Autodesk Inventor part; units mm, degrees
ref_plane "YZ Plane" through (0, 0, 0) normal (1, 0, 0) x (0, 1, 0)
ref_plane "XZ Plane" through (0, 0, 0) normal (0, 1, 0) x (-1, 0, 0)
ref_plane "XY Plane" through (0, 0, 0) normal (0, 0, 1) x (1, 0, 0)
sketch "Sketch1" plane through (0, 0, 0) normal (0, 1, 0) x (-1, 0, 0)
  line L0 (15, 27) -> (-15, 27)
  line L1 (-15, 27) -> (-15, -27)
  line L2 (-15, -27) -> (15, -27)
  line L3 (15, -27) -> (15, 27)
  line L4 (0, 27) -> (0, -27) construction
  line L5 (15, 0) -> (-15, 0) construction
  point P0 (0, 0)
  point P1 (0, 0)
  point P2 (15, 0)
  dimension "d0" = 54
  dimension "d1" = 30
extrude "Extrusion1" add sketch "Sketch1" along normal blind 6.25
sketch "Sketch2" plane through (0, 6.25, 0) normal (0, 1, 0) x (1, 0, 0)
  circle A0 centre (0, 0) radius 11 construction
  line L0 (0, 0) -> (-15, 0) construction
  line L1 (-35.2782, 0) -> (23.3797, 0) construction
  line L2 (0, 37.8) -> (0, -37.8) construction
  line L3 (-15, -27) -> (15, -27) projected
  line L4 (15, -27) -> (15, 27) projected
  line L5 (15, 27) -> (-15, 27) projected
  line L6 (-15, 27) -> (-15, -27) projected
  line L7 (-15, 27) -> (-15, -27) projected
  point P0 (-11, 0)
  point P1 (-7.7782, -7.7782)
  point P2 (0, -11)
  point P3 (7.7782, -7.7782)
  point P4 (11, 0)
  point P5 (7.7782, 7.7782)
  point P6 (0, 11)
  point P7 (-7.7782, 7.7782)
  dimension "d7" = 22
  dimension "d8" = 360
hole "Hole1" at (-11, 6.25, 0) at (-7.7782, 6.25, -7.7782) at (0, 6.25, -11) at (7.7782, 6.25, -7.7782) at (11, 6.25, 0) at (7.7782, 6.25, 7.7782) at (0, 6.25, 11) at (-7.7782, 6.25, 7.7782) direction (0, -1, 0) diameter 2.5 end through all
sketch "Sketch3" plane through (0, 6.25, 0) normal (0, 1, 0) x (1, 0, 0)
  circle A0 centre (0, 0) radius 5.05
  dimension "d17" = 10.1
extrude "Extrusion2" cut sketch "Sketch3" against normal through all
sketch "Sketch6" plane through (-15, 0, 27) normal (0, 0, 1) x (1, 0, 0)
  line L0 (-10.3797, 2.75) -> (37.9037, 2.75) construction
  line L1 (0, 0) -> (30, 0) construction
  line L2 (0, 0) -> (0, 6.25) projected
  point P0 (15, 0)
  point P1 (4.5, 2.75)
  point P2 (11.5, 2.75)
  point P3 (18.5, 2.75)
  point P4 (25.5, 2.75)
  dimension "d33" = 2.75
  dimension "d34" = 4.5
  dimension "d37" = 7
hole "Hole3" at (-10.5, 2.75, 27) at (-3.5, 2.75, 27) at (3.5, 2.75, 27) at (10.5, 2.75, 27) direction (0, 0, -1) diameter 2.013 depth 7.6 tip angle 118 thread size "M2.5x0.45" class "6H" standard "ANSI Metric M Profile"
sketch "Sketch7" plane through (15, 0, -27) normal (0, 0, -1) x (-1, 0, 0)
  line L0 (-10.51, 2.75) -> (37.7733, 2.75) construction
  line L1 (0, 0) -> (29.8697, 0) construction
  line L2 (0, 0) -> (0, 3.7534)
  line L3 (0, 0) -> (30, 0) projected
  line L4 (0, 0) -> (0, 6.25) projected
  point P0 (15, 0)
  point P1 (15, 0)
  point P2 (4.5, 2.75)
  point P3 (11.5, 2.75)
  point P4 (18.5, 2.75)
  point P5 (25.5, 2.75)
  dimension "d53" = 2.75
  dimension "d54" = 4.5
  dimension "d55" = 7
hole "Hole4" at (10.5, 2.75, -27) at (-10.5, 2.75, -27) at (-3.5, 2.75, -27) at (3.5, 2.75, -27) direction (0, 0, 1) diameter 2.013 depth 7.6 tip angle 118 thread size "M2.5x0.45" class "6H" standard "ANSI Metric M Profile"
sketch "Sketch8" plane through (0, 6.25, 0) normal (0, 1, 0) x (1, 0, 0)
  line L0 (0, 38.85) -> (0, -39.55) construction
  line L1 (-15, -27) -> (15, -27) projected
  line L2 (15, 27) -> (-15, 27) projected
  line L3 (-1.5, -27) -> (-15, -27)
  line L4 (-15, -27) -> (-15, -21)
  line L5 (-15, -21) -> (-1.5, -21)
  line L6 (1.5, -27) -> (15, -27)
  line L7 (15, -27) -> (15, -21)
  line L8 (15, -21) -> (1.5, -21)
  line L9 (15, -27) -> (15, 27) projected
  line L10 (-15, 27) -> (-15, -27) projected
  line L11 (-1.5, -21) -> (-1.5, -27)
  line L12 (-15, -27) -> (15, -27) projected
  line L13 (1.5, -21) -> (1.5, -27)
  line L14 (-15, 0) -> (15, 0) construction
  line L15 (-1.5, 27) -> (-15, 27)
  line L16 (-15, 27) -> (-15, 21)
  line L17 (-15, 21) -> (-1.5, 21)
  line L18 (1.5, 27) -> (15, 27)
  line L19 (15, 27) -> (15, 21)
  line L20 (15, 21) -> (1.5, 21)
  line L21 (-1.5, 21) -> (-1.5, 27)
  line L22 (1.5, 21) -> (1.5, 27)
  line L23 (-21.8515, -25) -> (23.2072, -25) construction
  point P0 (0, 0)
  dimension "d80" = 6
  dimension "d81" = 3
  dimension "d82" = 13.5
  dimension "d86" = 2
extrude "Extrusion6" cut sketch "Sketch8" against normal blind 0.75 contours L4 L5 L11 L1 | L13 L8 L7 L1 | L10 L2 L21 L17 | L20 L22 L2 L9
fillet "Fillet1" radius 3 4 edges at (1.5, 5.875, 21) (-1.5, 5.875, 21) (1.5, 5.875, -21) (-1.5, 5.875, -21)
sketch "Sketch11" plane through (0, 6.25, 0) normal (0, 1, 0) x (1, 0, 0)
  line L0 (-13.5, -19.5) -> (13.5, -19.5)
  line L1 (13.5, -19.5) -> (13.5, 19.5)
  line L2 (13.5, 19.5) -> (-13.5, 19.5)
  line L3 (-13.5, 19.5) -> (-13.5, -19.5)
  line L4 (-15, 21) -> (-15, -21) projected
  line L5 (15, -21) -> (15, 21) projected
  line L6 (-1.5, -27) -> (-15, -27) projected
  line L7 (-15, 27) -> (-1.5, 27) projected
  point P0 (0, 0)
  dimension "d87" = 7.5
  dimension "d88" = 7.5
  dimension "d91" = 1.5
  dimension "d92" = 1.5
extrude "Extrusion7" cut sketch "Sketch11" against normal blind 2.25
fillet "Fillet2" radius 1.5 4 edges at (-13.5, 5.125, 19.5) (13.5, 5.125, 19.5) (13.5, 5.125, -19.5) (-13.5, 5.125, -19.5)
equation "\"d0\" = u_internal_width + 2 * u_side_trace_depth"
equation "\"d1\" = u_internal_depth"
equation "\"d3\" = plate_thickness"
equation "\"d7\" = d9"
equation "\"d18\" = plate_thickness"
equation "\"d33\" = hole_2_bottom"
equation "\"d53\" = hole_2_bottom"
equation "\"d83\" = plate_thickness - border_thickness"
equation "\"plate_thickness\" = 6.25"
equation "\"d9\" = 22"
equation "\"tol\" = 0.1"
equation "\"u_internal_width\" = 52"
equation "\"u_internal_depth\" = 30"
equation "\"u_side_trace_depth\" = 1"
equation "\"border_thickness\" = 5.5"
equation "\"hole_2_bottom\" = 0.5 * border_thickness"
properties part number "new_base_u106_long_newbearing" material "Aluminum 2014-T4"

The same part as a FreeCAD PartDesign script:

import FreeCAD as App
import Part
import Sketcher

V = App.Vector


def edges_at(feature, points):
    """Names of the edges that pass closest to the given points."""
    edges = feature.Shape.Edges
    near = lambda p: min(range(len(edges)), key=lambda i: edges[i].distToShape(Part.Vertex(*p))[0])
    return sorted({f"Edge{near(p) + 1}" for p in points})

doc = App.newDocument("Part")
params = doc.addObject("Spreadsheet::Sheet", "Params")
for row, (alias, value) in enumerate([
    ("sketch1_width", "30 mm"),
    ("sketch1_height", "54 mm"),
    ("pad1_length", "6.25 mm"),
    ("sketch2_diameter", "2.5 mm"),
    ("hole_diameter", "2.5 mm"),
    ("sketch3_diameter", "10.1 mm"),
    ("hole2_diameter", "2.013 mm"),
    ("hole2_depth", "7.6 mm"),
    ("hole3_diameter", "2.013 mm"),
    ("hole3_depth", "7.6 mm"),
    ("sketch6_height", "6 mm"),
    ("sketch6_width", "13.5 mm"),
    ("pocket2_length", "0.75 mm"),
    ("fillet_radius", "3 mm"),
    ("sketch7_width", "27 mm"),
    ("sketch7_height", "39 mm"),
    ("pocket3_length", "2.25 mm"),
    ("fillet2_radius", "1.5 mm"),
], start=1):
    params.set(f"A{row}", alias)
    params.set(f"B{row}", "=" + value)
    params.setAlias(f"B{row}", alias)

body = doc.addObject("PartDesign::Body", "Body")

# Sketch on XZ plane
sketch1 = doc.addObject("Sketcher::SketchObject", "Sketch")
body.addObject(sketch1)
sketch1.AttachmentSupport = (doc.XZ_Plane, [""])
sketch1.MapMode = "FlatFace"
sketch1.addGeometry(Part.LineSegment(V(-15, -27, 0), V(-15, 27, 0)), False)
sketch1.addGeometry(Part.LineSegment(V(-15, 27, 0), V(15, 27, 0)), False)
sketch1.addGeometry(Part.LineSegment(V(15, 27, 0), V(15, -27, 0)), False)
sketch1.addGeometry(Part.LineSegment(V(15, -27, 0), V(-15, -27, 0)), False)
sketch1.addConstraint(Sketcher.Constraint("Coincident", 0, 2, 1, 1))
sketch1.addConstraint(Sketcher.Constraint("Coincident", 1, 2, 2, 1))
sketch1.addConstraint(Sketcher.Constraint("Coincident", 2, 2, 3, 1))
sketch1.addConstraint(Sketcher.Constraint("Coincident", 3, 2, 0, 1))
sketch1.addConstraint(Sketcher.Constraint("Vertical", 0))
sketch1.addConstraint(Sketcher.Constraint("Horizontal", 1))
sketch1.addConstraint(Sketcher.Constraint("Vertical", 2))
sketch1.addConstraint(Sketcher.Constraint("Horizontal", 3))
sketch1.addConstraint(Sketcher.Constraint("Symmetric", 0, 2, 2, 2, -1, 1))
sketch1.addConstraint(Sketcher.Constraint("DistanceX", 1, 1, 1, 2, 30.0))
sketch1.addConstraint(Sketcher.Constraint("DistanceY", 0, 1, 0, 2, 54.0))
sketch1.setExpression("Constraints[9]", "Params.sketch1_width")
sketch1.setExpression("Constraints[10]", "Params.sketch1_height")
pad1 = doc.addObject("PartDesign::Pad", "Pad")
body.addObject(pad1)
pad1.Profile = sketch1
pad1.setExpression("Length", "Params.pad1_length")
pad1.Reversed = True

# Sketch on XZ plane
sketch2 = doc.addObject("Sketcher::SketchObject", "Sketch001")
body.addObject(sketch2)
sketch2.AttachmentSupport = (doc.XZ_Plane, [""])
sketch2.MapMode = "FlatFace"
sketch2.AttachmentOffset = App.Placement(V(0, 0, -6.25), App.Rotation())
sketch2.addGeometry(Part.Circle(V(-11, 0, 0), V(0, 0, 1), 1.2), False)
sketch2.addGeometry(Part.Circle(V(-7.8, -7.8, 0), V(0, 0, 1), 1.2), False)
sketch2.addGeometry(Part.Circle(V(0, -11, 0), V(0, 0, 1), 1.2), False)
sketch2.addGeometry(Part.Circle(V(7.8, -7.8, 0), V(0, 0, 1), 1.2), False)
sketch2.addGeometry(Part.Circle(V(11, 0, 0), V(0, 0, 1), 1.2), False)
sketch2.addGeometry(Part.Circle(V(7.8, 7.8, 0), V(0, 0, 1), 1.2), False)
sketch2.addGeometry(Part.Circle(V(0, 11, 0), V(0, 0, 1), 1.2), False)
sketch2.addGeometry(Part.Circle(V(-7.8, 7.8, 0), V(0, 0, 1), 1.2), False)
sketch2.addConstraint(Sketcher.Constraint("Equal", 0, 1))
sketch2.addConstraint(Sketcher.Constraint("Equal", 1, 2))
sketch2.addConstraint(Sketcher.Constraint("Equal", 2, 3))
sketch2.addConstraint(Sketcher.Constraint("Equal", 3, 4))
sketch2.addConstraint(Sketcher.Constraint("Equal", 4, 5))
sketch2.addConstraint(Sketcher.Constraint("Equal", 5, 6))
sketch2.addConstraint(Sketcher.Constraint("Equal", 6, 7))
sketch2.addConstraint(Sketcher.Constraint("Symmetric", 0, 3, 4, 3, -1, 1))
sketch2.addConstraint(Sketcher.Constraint("Symmetric", 1, 3, 5, 3, -1, 1))
sketch2.addConstraint(Sketcher.Constraint("Symmetric", 2, 3, 6, 3, -1, 1))
sketch2.addConstraint(Sketcher.Constraint("Symmetric", 3, 3, 7, 3, -1, 1))
sketch2.addConstraint(Sketcher.Constraint("Symmetric", 1, 3, 3, 3, -2))
sketch2.addConstraint(Sketcher.Constraint("PointOnObject", 0, 3, -1))
sketch2.addConstraint(Sketcher.Constraint("PointOnObject", 2, 3, -2))
sketch2.addConstraint(Sketcher.Constraint("Diameter", 0, 2.5))
sketch2.addConstraint(Sketcher.Constraint("DistanceX", 0, 3, -1, 1, 11.0))
sketch2.addConstraint(Sketcher.Constraint("DistanceY", 2, 3, -1, 1, 11.0))
sketch2.addConstraint(Sketcher.Constraint("DistanceX", 1, 3, -1, 1, 7.7782))
sketch2.addConstraint(Sketcher.Constraint("DistanceY", 1, 3, -1, 1, 7.7782))
sketch2.setExpression("Constraints[14]", "Params.sketch2_diameter")
doc.recompute()
hole = doc.addObject("PartDesign::Hole", "Hole")
body.addObject(hole)
hole.Profile = sketch2
hole.ThreadType = "None"
hole.setExpression("Diameter", "Params.hole_diameter")
hole.DepthType = "ThroughAll"
hole.Reversed = True

# Sketch on XZ plane
sketch3 = doc.addObject("Sketcher::SketchObject", "Sketch002")
body.addObject(sketch3)
sketch3.AttachmentSupport = (doc.XZ_Plane, [""])
sketch3.MapMode = "FlatFace"
sketch3.AttachmentOffset = App.Placement(V(0, 0, -6.25), App.Rotation())
sketch3.addGeometry(Part.Circle(V(0, 0, 0), V(0, 0, 1), 5), False)
sketch3.addConstraint(Sketcher.Constraint("Coincident", 0, 3, -1, 1))
sketch3.addConstraint(Sketcher.Constraint("Diameter", 0, 10.1))
sketch3.setExpression("Constraints[1]", "Params.sketch3_diameter")
pocket1 = doc.addObject("PartDesign::Pocket", "Pocket")
body.addObject(pocket1)
pocket1.Profile = sketch3
pocket1.Type = "ThroughAll"
pocket1.Reversed = True

# Sketch on XY plane
sketch4 = doc.addObject("Sketcher::SketchObject", "Sketch003")
body.addObject(sketch4)
sketch4.AttachmentSupport = (doc.XY_Plane, [""])
sketch4.MapMode = "FlatFace"
sketch4.AttachmentOffset = App.Placement(V(0, 0, 27), App.Rotation())
sketch4.addGeometry(Part.Circle(V(-10.5, 2.8, 0), V(0, 0, 1), 1), False)
sketch4.addGeometry(Part.Circle(V(-3.5, 2.8, 0), V(0, 0, 1), 1), False)
sketch4.addGeometry(Part.Circle(V(3.5, 2.8, 0), V(0, 0, 1), 1), False)
sketch4.addGeometry(Part.Circle(V(10.5, 2.8, 0), V(0, 0, 1), 1), False)
sketch4.addConstraint(Sketcher.Constraint("Equal", 0, 1))
sketch4.addConstraint(Sketcher.Constraint("Equal", 1, 2))
sketch4.addConstraint(Sketcher.Constraint("Equal", 2, 3))
sketch4.addConstraint(Sketcher.Constraint("Symmetric", 1, 3, 2, 3, -2))
sketch4.addConstraint(Sketcher.Constraint("Symmetric", 0, 3, 3, 3, -2))
sketch4.addConstraint(Sketcher.Constraint("Horizontal", 0, 3, 1, 3))
sketch4.addConstraint(Sketcher.Constraint("Diameter", 0, 2.013))
sketch4.addConstraint(Sketcher.Constraint("DistanceX", 0, 3, 1, 3, 7.0))
sketch4.addConstraint(Sketcher.Constraint("DistanceX", 1, 3, 2, 3, 7.0))
sketch4.addConstraint(Sketcher.Constraint("DistanceY", -1, 1, 0, 3, 2.75))
doc.recompute()
hole2 = doc.addObject("PartDesign::Hole", "Hole001")
body.addObject(hole2)
hole2.Profile = sketch4
hole2.ThreadType = "None"
hole2.setExpression("Diameter", "Params.hole2_diameter")
hole2.DepthType = "Dimension"
hole2.setExpression("Depth", "Params.hole2_depth")
hole2.DrillPoint = "Angled"
hole2.DrillPointAngle = 118

# Sketch on XY plane
sketch5 = doc.addObject("Sketcher::SketchObject", "Sketch004")
body.addObject(sketch5)
sketch5.AttachmentSupport = (doc.XY_Plane, [""])
sketch5.MapMode = "FlatFace"
sketch5.AttachmentOffset = App.Placement(V(0, 0, -27), App.Rotation())
sketch5.addGeometry(Part.Circle(V(10.5, 2.8, 0), V(0, 0, 1), 1), False)
sketch5.addGeometry(Part.Circle(V(-10.5, 2.8, 0), V(0, 0, 1), 1), False)
sketch5.addGeometry(Part.Circle(V(-3.5, 2.8, 0), V(0, 0, 1), 1), False)
sketch5.addGeometry(Part.Circle(V(3.5, 2.8, 0), V(0, 0, 1), 1), False)
sketch5.addConstraint(Sketcher.Constraint("Equal", 0, 1))
sketch5.addConstraint(Sketcher.Constraint("Equal", 1, 2))
sketch5.addConstraint(Sketcher.Constraint("Equal", 2, 3))
sketch5.addConstraint(Sketcher.Constraint("Symmetric", 0, 3, 1, 3, -2))
sketch5.addConstraint(Sketcher.Constraint("Symmetric", 2, 3, 3, 3, -2))
sketch5.addConstraint(Sketcher.Constraint("Horizontal", 1, 3, 2, 3))
sketch5.addConstraint(Sketcher.Constraint("Diameter", 0, 2.013))
sketch5.addConstraint(Sketcher.Constraint("DistanceX", 1, 3, 0, 3, 21.0))
sketch5.addConstraint(Sketcher.Constraint("DistanceX", 1, 3, 2, 3, 7.0))
sketch5.addConstraint(Sketcher.Constraint("DistanceY", -1, 1, 0, 3, 2.75))
doc.recompute()
hole3 = doc.addObject("PartDesign::Hole", "Hole002")
body.addObject(hole3)
hole3.Profile = sketch5
hole3.ThreadType = "None"
hole3.setExpression("Diameter", "Params.hole3_diameter")
hole3.DepthType = "Dimension"
hole3.setExpression("Depth", "Params.hole3_depth")
hole3.DrillPoint = "Angled"
hole3.DrillPointAngle = 118
hole3.Reversed = True

# Sketch on XZ plane
sketch6 = doc.addObject("Sketcher::SketchObject", "Sketch005")
body.addObject(sketch6)
sketch6.AttachmentSupport = (doc.XZ_Plane, [""])
sketch6.MapMode = "FlatFace"
sketch6.AttachmentOffset = App.Placement(V(0, 0, -6.25), App.Rotation())
sketch6.addGeometry(Part.LineSegment(V(-15, 21, 0), V(-15, 27, 0)), False)
sketch6.addGeometry(Part.LineSegment(V(-15, 27, 0), V(-2, 27, 0)), False)
sketch6.addGeometry(Part.LineSegment(V(-2, 27, 0), V(-2, 21, 0)), False)
sketch6.addGeometry(Part.LineSegment(V(-2, 21, 0), V(-15, 21, 0)), False)
sketch6.addGeometry(Part.LineSegment(V(2, 21, 0), V(2, 27, 0)), False)
sketch6.addGeometry(Part.LineSegment(V(2, 27, 0), V(15, 27, 0)), False)
sketch6.addGeometry(Part.LineSegment(V(15, 27, 0), V(15, 21, 0)), False)
sketch6.addGeometry(Part.LineSegment(V(15, 21, 0), V(2, 21, 0)), False)
sketch6.addGeometry(Part.LineSegment(V(-15, -27, 0), V(-15, -21, 0)), False)
sketch6.addGeometry(Part.LineSegment(V(-15, -21, 0), V(-2, -21, 0)), False)
sketch6.addGeometry(Part.LineSegment(V(-2, -21, 0), V(-2, -27, 0)), False)
sketch6.addGeometry(Part.LineSegment(V(-2, -27, 0), V(-15, -27, 0)), False)
sketch6.addGeometry(Part.LineSegment(V(2, -21, 0), V(15, -21, 0)), False)
sketch6.addGeometry(Part.LineSegment(V(15, -21, 0), V(15, -27, 0)), False)
sketch6.addGeometry(Part.LineSegment(V(15, -27, 0), V(2, -27, 0)), False)
sketch6.addGeometry(Part.LineSegment(V(2, -27, 0), V(2, -21, 0)), False)
sketch6.addConstraint(Sketcher.Constraint("Coincident", 0, 2, 1, 1))
sketch6.addConstraint(Sketcher.Constraint("Coincident", 1, 2, 2, 1))
sketch6.addConstraint(Sketcher.Constraint("Coincident", 2, 2, 3, 1))
sketch6.addConstraint(Sketcher.Constraint("Coincident", 3, 2, 0, 1))
sketch6.addConstraint(Sketcher.Constraint("Coincident", 4, 2, 5, 1))
sketch6.addConstraint(Sketcher.Constraint("Coincident", 5, 2, 6, 1))
sketch6.addConstraint(Sketcher.Constraint("Coincident", 6, 2, 7, 1))
sketch6.addConstraint(Sketcher.Constraint("Coincident", 7, 2, 4, 1))
sketch6.addConstraint(Sketcher.Constraint("Coincident", 8, 2, 9, 1))
sketch6.addConstraint(Sketcher.Constraint("Coincident", 9, 2, 10, 1))
sketch6.addConstraint(Sketcher.Constraint("Coincident", 10, 2, 11, 1))
sketch6.addConstraint(Sketcher.Constraint("Coincident", 11, 2, 8, 1))
sketch6.addConstraint(Sketcher.Constraint("Coincident", 12, 2, 13, 1))
sketch6.addConstraint(Sketcher.Constraint("Coincident", 13, 2, 14, 1))
sketch6.addConstraint(Sketcher.Constraint("Coincident", 14, 2, 15, 1))
sketch6.addConstraint(Sketcher.Constraint("Coincident", 15, 2, 12, 1))
sketch6.addConstraint(Sketcher.Constraint("Vertical", 0))
sketch6.addConstraint(Sketcher.Constraint("Horizontal", 1))
sketch6.addConstraint(Sketcher.Constraint("Vertical", 2))
sketch6.addConstraint(Sketcher.Constraint("Horizontal", 3))
sketch6.addConstraint(Sketcher.Constraint("Vertical", 4))
sketch6.addConstraint(Sketcher.Constraint("Horizontal", 5))
sketch6.addConstraint(Sketcher.Constraint("Vertical", 6))
sketch6.addConstraint(Sketcher.Constraint("Horizontal", 7))
sketch6.addConstraint(Sketcher.Constraint("Vertical", 8))
sketch6.addConstraint(Sketcher.Constraint("Horizontal", 9))
sketch6.addConstraint(Sketcher.Constraint("Vertical", 10))
sketch6.addConstraint(Sketcher.Constraint("Horizontal", 11))
sketch6.addConstraint(Sketcher.Constraint("Horizontal", 12))
sketch6.addConstraint(Sketcher.Constraint("Vertical", 13))
sketch6.addConstraint(Sketcher.Constraint("Horizontal", 14))
sketch6.addConstraint(Sketcher.Constraint("Vertical", 15))
sketch6.addConstraint(Sketcher.Constraint("Symmetric", 6, 2, 8, 2, -1, 1))
sketch6.addConstraint(Sketcher.Constraint("Symmetric", 4, 2, 10, 2, -1, 1))
sketch6.addConstraint(Sketcher.Constraint("Symmetric", 3, 2, 12, 2, -1, 1))
sketch6.addConstraint(Sketcher.Constraint("Symmetric", 1, 2, 14, 2, -1, 1))
sketch6.addConstraint(Sketcher.Constraint("Symmetric", 1, 2, 4, 2, -2))
sketch6.addConstraint(Sketcher.Constraint("Symmetric", 3, 2, 6, 2, -2))
sketch6.addConstraint(Sketcher.Constraint("DistanceY", 0, 1, 0, 2, 6.0))
sketch6.addConstraint(Sketcher.Constraint("DistanceX", 1, 1, 1, 2, 13.5))
sketch6.addConstraint(Sketcher.Constraint("DistanceX", 1, 2, 4, 2, 3.0))
sketch6.addConstraint(Sketcher.Constraint("DistanceY", -1, 1, 0, 2, 27.0))
sketch6.setExpression("Constraints[38]", "Params.sketch6_height")
sketch6.setExpression("Constraints[39]", "Params.sketch6_width")
pocket2 = doc.addObject("PartDesign::Pocket", "Pocket001")
body.addObject(pocket2)
pocket2.Profile = sketch6
pocket2.setExpression("Length", "Params.pocket2_length")
pocket2.Reversed = True
doc.recompute()

fillet = doc.addObject("PartDesign::Fillet", "Fillet")
body.addObject(fillet)
fillet.Base = (pocket2, edges_at(pocket2, [
    (1.5, 5.875, 21),
    (-1.5, 5.875, 21),
    (1.5, 5.875, -21),
    (-1.5, 5.875, -21),
]))
fillet.setExpression("Radius", "Params.fillet_radius")

# Sketch on XZ plane
sketch7 = doc.addObject("Sketcher::SketchObject", "Sketch006")
body.addObject(sketch7)
sketch7.AttachmentSupport = (doc.XZ_Plane, [""])
sketch7.MapMode = "FlatFace"
sketch7.AttachmentOffset = App.Placement(V(0, 0, -6.25), App.Rotation())
sketch7.addGeometry(Part.LineSegment(V(-14, -20, 0), V(-14, 20, 0)), False)
sketch7.addGeometry(Part.LineSegment(V(-14, 20, 0), V(14, 20, 0)), False)
sketch7.addGeometry(Part.LineSegment(V(14, 20, 0), V(14, -20, 0)), False)
sketch7.addGeometry(Part.LineSegment(V(14, -20, 0), V(-14, -20, 0)), False)
sketch7.addConstraint(Sketcher.Constraint("Coincident", 0, 2, 1, 1))
sketch7.addConstraint(Sketcher.Constraint("Coincident", 1, 2, 2, 1))
sketch7.addConstraint(Sketcher.Constraint("Coincident", 2, 2, 3, 1))
sketch7.addConstraint(Sketcher.Constraint("Coincident", 3, 2, 0, 1))
sketch7.addConstraint(Sketcher.Constraint("Vertical", 0))
sketch7.addConstraint(Sketcher.Constraint("Horizontal", 1))
sketch7.addConstraint(Sketcher.Constraint("Vertical", 2))
sketch7.addConstraint(Sketcher.Constraint("Horizontal", 3))
sketch7.addConstraint(Sketcher.Constraint("Symmetric", 0, 2, 2, 2, -1, 1))
sketch7.addConstraint(Sketcher.Constraint("DistanceX", 1, 1, 1, 2, 27.0))
sketch7.addConstraint(Sketcher.Constraint("DistanceY", 0, 1, 0, 2, 39.0))
sketch7.setExpression("Constraints[9]", "Params.sketch7_width")
sketch7.setExpression("Constraints[10]", "Params.sketch7_height")
pocket3 = doc.addObject("PartDesign::Pocket", "Pocket002")
body.addObject(pocket3)
pocket3.Profile = sketch7
pocket3.setExpression("Length", "Params.pocket3_length")
pocket3.Reversed = True
doc.recompute()

fillet2 = doc.addObject("PartDesign::Fillet", "Fillet001")
body.addObject(fillet2)
fillet2.Base = (pocket3, edges_at(pocket3, [
    (-13.5, 5.125, 19.5),
    (13.5, 5.125, 19.5),
    (13.5, 5.125, -19.5),
    (-13.5, 5.125, -19.5),
]))
fillet2.setExpression("Radius", "Params.fillet2_radius")

doc.recompute()
